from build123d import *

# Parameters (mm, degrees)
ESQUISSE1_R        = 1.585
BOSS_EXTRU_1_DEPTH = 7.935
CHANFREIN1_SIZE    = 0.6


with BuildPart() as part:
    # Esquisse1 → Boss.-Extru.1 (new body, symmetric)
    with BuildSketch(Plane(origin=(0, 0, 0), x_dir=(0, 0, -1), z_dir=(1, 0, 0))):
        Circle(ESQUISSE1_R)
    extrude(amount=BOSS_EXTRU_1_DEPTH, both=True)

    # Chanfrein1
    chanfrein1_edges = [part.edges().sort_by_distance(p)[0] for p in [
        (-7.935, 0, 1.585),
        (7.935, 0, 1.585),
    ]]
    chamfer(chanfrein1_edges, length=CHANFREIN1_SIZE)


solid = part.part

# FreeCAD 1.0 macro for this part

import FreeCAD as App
import Part
import Sketcher


def edges_at(feature, points):
    """Names of the edges that pass closest to the given points."""
    edges = feature.Shape.Edges
    near = lambda p: min(range(len(edges)), key=lambda i: edges[i].distToShape(Part.Vertex(*p))[0])
    return sorted({f"Edge{near(p) + 1}" for p in points})

doc = App.newDocument("Part")
body = doc.addObject("PartDesign::Body", "Body")

# Sketch on YZ plane
sketch1 = body.newObject("Sketcher::SketchObject", "Sketch")
sketch1.AttachmentSupport = (doc.getObject("YZ_Plane"), [""])
sketch1.MapMode = "FlatFace"
sketch1.addGeometry(Part.Circle(App.Vector(0, 0, 0), App.Vector(0, 0, 1), 1.6), False)
sketch1.addConstraint([
    Sketcher.Constraint("Coincident", 0, 3, -1, 1),
    Sketcher.Constraint("Diameter", 0, 3.17),
])
pad1 = body.newObject("PartDesign::Pad", "Pad")
pad1.Profile = sketch1
pad1.Length = 15.87
pad1.Midplane = True
doc.recompute()

chamfer = body.newObject("PartDesign::Chamfer", "Chamfer")
chamfer.Base = (pad1, edges_at(pad1, [(-7.935, 0, 1.585), (7.935, 0, 1.585)]))
chamfer.Size = 0.6

doc.recompute()
